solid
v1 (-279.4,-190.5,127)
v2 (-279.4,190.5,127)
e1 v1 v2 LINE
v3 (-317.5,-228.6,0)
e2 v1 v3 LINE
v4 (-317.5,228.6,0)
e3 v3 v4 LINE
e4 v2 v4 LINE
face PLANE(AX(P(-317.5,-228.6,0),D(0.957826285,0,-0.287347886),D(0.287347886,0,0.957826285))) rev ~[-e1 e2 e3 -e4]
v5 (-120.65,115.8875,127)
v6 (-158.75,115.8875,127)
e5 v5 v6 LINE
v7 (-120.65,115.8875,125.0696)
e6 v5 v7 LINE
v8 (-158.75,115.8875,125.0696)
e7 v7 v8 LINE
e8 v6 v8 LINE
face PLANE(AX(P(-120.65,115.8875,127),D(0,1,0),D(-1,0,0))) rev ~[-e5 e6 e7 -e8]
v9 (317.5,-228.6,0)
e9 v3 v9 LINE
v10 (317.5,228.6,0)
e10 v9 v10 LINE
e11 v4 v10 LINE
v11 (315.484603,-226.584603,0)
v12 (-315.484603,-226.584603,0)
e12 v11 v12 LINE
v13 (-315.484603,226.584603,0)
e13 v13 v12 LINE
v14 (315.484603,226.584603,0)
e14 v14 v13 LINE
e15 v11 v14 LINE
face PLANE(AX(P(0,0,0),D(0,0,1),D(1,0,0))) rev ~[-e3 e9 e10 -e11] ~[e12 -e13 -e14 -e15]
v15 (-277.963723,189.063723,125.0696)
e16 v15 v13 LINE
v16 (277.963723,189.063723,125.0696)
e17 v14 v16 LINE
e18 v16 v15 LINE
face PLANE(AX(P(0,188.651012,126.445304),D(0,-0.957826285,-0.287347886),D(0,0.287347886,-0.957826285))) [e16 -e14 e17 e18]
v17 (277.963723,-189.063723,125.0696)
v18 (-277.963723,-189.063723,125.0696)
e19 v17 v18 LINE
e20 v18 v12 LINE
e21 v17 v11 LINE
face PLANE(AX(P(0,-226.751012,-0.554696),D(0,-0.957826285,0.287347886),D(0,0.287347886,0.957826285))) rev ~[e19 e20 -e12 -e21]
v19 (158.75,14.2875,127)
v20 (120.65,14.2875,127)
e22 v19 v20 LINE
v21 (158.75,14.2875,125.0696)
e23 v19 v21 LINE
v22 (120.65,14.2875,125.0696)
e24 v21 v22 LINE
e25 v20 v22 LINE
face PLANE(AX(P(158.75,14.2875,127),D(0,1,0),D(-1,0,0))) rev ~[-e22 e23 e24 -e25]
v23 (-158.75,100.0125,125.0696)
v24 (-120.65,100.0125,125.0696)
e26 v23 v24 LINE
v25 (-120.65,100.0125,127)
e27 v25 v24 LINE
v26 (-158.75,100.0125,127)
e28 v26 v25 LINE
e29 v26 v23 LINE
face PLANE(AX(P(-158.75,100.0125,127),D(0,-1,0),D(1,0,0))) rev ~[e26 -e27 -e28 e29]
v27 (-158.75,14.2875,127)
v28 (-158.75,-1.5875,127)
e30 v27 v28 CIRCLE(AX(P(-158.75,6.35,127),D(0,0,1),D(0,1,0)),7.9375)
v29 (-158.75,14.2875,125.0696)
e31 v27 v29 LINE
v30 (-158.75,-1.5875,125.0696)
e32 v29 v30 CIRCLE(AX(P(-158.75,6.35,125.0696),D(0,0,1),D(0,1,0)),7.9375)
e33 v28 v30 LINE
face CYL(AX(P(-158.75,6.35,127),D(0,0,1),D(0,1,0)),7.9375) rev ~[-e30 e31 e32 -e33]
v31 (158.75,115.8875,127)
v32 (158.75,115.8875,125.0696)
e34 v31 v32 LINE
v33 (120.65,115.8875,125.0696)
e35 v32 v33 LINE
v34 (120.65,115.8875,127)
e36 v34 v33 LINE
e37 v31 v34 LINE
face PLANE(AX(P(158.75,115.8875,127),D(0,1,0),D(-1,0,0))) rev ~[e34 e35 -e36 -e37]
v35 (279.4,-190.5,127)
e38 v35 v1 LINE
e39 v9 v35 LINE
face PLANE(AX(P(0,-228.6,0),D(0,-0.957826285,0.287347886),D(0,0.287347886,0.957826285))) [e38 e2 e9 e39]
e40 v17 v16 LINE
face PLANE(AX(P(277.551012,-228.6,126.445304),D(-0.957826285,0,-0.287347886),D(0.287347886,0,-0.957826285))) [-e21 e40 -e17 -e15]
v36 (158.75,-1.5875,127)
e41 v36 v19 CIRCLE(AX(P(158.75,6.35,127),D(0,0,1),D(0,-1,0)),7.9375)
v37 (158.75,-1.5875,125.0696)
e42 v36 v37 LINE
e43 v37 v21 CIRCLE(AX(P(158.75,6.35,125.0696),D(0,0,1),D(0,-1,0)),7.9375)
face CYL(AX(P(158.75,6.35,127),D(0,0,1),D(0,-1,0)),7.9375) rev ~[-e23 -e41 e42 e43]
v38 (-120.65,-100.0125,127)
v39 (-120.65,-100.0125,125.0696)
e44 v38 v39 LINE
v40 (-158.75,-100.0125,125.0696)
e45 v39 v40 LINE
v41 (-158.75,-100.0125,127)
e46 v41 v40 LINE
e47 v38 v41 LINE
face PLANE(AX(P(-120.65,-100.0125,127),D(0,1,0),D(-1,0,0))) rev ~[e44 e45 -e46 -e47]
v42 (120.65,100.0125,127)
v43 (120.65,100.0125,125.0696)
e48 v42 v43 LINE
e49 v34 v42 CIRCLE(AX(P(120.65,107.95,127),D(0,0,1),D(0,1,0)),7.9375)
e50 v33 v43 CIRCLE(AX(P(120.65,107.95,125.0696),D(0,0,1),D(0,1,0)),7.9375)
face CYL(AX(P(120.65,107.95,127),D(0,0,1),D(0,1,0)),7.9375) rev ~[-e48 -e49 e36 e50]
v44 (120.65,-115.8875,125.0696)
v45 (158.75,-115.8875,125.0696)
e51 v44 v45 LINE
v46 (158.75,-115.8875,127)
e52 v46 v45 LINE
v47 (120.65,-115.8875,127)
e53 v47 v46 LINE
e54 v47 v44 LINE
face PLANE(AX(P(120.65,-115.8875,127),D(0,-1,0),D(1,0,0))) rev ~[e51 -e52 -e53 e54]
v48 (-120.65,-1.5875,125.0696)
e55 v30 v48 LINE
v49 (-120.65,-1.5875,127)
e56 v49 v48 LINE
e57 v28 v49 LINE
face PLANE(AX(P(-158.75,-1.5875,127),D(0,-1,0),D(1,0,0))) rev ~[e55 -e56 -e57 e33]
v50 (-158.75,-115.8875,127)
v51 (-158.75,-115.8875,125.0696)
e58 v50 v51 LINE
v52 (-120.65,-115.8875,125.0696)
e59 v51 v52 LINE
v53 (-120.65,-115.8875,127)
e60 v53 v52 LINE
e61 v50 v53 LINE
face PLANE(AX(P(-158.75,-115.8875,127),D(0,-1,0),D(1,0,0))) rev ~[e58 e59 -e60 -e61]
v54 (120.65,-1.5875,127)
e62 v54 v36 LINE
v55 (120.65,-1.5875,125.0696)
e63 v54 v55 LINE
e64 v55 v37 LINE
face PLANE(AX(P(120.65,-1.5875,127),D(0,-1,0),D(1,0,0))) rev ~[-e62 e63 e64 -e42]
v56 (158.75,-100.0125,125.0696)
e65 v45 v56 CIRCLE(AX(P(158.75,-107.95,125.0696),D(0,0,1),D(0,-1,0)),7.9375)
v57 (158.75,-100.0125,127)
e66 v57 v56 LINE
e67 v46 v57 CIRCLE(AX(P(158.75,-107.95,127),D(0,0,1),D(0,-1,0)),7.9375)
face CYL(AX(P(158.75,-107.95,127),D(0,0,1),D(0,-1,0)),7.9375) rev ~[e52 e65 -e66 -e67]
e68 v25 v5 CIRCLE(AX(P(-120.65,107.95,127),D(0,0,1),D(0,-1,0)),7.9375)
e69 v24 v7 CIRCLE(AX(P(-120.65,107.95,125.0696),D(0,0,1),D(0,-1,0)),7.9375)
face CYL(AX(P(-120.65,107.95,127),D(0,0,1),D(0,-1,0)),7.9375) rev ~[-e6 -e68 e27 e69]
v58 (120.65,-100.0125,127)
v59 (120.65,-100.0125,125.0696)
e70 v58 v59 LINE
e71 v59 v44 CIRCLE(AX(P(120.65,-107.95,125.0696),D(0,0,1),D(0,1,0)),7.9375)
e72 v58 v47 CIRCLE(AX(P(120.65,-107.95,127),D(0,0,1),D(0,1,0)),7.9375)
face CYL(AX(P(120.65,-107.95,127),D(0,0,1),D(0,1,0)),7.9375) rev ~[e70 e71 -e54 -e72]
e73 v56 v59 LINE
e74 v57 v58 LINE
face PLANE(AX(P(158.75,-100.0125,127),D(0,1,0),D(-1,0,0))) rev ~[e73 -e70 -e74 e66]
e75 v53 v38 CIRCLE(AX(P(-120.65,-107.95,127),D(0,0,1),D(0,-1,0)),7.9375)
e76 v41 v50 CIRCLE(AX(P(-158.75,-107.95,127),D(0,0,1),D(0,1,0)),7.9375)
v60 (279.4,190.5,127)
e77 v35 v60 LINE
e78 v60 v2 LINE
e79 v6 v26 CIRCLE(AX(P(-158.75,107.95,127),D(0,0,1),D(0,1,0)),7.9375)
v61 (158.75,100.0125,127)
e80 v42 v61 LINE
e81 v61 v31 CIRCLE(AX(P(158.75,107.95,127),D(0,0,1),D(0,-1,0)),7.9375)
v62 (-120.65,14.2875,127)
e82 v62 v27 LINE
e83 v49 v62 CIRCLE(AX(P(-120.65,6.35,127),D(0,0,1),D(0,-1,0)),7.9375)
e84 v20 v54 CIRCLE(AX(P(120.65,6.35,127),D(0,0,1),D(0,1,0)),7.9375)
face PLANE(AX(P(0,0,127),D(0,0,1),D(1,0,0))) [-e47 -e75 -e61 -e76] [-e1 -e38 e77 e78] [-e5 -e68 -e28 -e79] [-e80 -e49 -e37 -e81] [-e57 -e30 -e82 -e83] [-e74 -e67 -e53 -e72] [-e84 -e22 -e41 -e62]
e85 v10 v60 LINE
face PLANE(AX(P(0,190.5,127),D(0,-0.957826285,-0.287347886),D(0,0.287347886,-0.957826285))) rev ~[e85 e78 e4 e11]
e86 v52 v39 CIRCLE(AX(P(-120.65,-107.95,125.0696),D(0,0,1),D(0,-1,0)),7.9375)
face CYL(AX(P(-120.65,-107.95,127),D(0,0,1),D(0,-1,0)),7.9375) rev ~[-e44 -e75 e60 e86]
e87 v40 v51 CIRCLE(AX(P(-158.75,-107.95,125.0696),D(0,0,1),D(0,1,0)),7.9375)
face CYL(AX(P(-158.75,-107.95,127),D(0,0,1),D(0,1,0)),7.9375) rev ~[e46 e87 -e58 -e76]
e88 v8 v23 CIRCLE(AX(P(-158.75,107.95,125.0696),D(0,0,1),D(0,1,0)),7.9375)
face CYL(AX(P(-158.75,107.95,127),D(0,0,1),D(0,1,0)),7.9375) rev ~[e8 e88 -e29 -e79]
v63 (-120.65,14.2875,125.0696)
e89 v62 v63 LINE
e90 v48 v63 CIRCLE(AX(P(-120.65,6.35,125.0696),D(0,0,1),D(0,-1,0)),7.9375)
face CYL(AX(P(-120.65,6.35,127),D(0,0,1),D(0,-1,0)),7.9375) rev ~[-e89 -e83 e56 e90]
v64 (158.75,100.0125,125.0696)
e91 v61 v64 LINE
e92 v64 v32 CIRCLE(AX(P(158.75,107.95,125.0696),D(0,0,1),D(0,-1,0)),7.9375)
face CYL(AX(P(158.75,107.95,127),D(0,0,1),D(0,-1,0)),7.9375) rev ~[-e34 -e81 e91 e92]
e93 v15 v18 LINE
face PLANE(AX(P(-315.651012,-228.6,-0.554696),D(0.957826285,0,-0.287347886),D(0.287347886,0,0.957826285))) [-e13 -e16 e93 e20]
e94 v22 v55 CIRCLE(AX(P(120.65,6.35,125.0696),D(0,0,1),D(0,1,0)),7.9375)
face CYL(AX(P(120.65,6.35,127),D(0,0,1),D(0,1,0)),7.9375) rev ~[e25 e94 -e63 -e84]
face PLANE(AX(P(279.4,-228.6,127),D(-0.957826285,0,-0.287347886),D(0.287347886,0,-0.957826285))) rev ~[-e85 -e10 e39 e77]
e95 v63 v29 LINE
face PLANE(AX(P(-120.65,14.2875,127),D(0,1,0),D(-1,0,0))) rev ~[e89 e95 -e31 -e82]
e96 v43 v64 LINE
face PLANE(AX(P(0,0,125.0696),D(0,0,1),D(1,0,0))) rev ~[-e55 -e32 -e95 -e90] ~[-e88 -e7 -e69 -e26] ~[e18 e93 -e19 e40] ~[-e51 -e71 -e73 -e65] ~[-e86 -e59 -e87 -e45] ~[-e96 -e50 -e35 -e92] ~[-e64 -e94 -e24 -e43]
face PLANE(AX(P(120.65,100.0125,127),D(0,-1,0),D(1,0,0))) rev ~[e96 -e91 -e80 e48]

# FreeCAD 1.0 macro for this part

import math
import FreeCAD as App
import Part
import Sketcher

V = App.Vector
Q = App.Units.Quantity


def faces_at(feature, points):
    """Names of the faces that lie closest to the given points."""
    faces = feature.Shape.Faces
    near = lambda p: min(range(len(faces)), key=lambda i: faces[i].distToShape(Part.Vertex(*p))[0])
    return sorted({f"Face{near(p) + 1}" for p in points})

doc = App.newDocument("Part")
body = doc.addObject("PartDesign::Body", "Body")

sketch1 = body.newObject("Sketcher::SketchObject", "Sketch")
sketch1.AttachmentSupport = (doc.getObject("XY_Plane"), [""])
sketch1.MapMode = "FlatFace"
sketch1.addGeometry([
    Part.LineSegment(V(-317.5, 228.6, 0), V(-317.5, -228.6, 0)),
    Part.LineSegment(V(-317.5, -228.6, 0), V(317.5, -228.6, 0)),
    Part.LineSegment(V(317.5, -228.6, 0), V(317.5, 228.6, 0)),
    Part.LineSegment(V(317.5, 228.6, 0), V(-317.5, 228.6, 0)),
], False)
sketch1.addConstraint([
    Sketcher.Constraint("Coincident", 0, 2, 1, 1),
    Sketcher.Constraint("Coincident", 1, 2, 2, 1),
    Sketcher.Constraint("Coincident", 2, 2, 3, 1),
    Sketcher.Constraint("Coincident", 3, 2, 0, 1),
    Sketcher.Constraint("Vertical", 0),
    Sketcher.Constraint("Horizontal", 1),
    Sketcher.Constraint("Vertical", 2),
    Sketcher.Constraint("Horizontal", 3),
    Sketcher.Constraint("Symmetric", 0, 2, 2, 2, -1, 1),
    Sketcher.Constraint("DistanceX", 1, 1, 1, 2, Q("25 in")),
    Sketcher.Constraint("DistanceY", 0, 2, 0, 1, Q("18 in")),
])
pad1 = body.newObject("PartDesign::Pad", "Pad")
pad1.Profile = sketch1
pad1.Length = Q("5 in")

sketch2 = body.newObject("Sketcher::SketchObject", "Sketch001")
sketch2.AttachmentSupport = (doc.getObject("XZ_Plane"), [""])
sketch2.MapMode = "FlatFace"
sketch2.AttachmentOffset = App.Placement(V(0, 0, 9 * 25.4), App.Rotation())
sketch2.addGeometry([
    Part.LineSegment(V(-317.5, 127, 0), V(-317.5, 0, 0)),
    Part.LineSegment(V(-317.5, 0, 0), V(-279.4, 127, 0)),
    Part.LineSegment(V(-279.4, 127, 0), V(-317.5, 127, 0)),
    Part.LineSegment(V(279.4, 127, 0), V(317.5, 0, 0)),
    Part.LineSegment(V(317.5, 0, 0), V(317.5, 127, 0)),
    Part.LineSegment(V(317.5, 127, 0), V(279.4, 127, 0)),
], False)
sketch2.addConstraint([
    Sketcher.Constraint("Coincident", 0, 2, 1, 1),
    Sketcher.Constraint("Coincident", 1, 2, 2, 1),
    Sketcher.Constraint("Coincident", 2, 2, 0, 1),
    Sketcher.Constraint("Coincident", 3, 2, 4, 1),
    Sketcher.Constraint("Coincident", 4, 2, 5, 1),
    Sketcher.Constraint("Coincident", 5, 2, 3, 1),
    Sketcher.Constraint("Vertical", 0),
    Sketcher.Constraint("Horizontal", 2),
    Sketcher.Constraint("Vertical", 4),
    Sketcher.Constraint("Horizontal", 5),
    Sketcher.Constraint("Symmetric", 0, 2, 3, 2, -1, 1),
    Sketcher.Constraint("Symmetric", 1, 2, 5, 2, -2),
    Sketcher.Constraint("PointOnObject", 0, 2, -1),
    Sketcher.Constraint("DistanceY", 0, 2, 0, 1, Q("5 in")),
    Sketcher.Constraint("DistanceX", 2, 2, 2, 1, Q("1.5 in")),
    Sketcher.Constraint("DistanceX", 1, 2, -1, 1, Q("11 in")),
])
pocket1 = body.newObject("PartDesign::Pocket", "Pocket")
pocket1.Profile = sketch2
pocket1.Type = "ThroughAll"

sketch3 = body.newObject("Sketcher::SketchObject", "Sketch002")
sketch3.AttachmentSupport = (doc.getObject("YZ_Plane"), [""])
sketch3.MapMode = "FlatFace"
sketch3.addGeometry([
    Part.LineSegment(V(-228.6, 127, 0), V(-228.6, 0, 0)),
    Part.LineSegment(V(-228.6, 0, 0), V(-190.5, 127, 0)),
    Part.LineSegment(V(-190.5, 127, 0), V(-228.6, 127, 0)),
    Part.LineSegment(V(228.6, 0, 0), V(228.6, 127, 0)),
    Part.LineSegment(V(228.6, 127, 0), V(190.5, 127, 0)),
    Part.LineSegment(V(190.5, 127, 0), V(228.6, 0, 0)),
], False)
sketch3.addConstraint([
    Sketcher.Constraint("Coincident", 0, 2, 1, 1),
    Sketcher.Constraint("Coincident", 1, 2, 2, 1),
    Sketcher.Constraint("Coincident", 2, 2, 0, 1),
    Sketcher.Constraint("Coincident", 3, 2, 4, 1),
    Sketcher.Constraint("Coincident", 4, 2, 5, 1),
    Sketcher.Constraint("Coincident", 5, 2, 3, 1),
    Sketcher.Constraint("Vertical", 0),
    Sketcher.Constraint("Horizontal", 2),
    Sketcher.Constraint("Vertical", 3),
    Sketcher.Constraint("Horizontal", 4),
    Sketcher.Constraint("Symmetric", 0, 2, 5, 2, -1, 1),
    Sketcher.Constraint("Symmetric", 1, 2, 4, 2, -2),
    Sketcher.Constraint("PointOnObject", 0, 2, -1),
    Sketcher.Constraint("DistanceY", 0, 2, 0, 1, Q("5 in")),
    Sketcher.Constraint("DistanceX", 2, 2, 2, 1, Q("1.5 in")),
    Sketcher.Constraint("DistanceX", 0, 2, -1, 1, Q("9 in")),
])
pocket2 = body.newObject("PartDesign::Pocket", "Pocket001")
pocket2.Profile = sketch3
pocket2.Length = Q("26 in")
pocket2.Midplane = True
doc.recompute()

thickness = body.newObject("PartDesign::Thickness", "Thickness")
thickness.Base = (pocket2, faces_at(pocket2, [(0, 0, 0)]))
thickness.Value = Q("0.076 in")
thickness.Reversed = True
thickness.Join = "Arc"

sketch4 = body.newObject("Sketcher::SketchObject", "Sketch003")
sketch4.AttachmentSupport = (doc.getObject("XY_Plane"), [""])
sketch4.MapMode = "FlatFace"
sketch4.AttachmentOffset = App.Placement(V(0, 0, 5 * 25.4), App.Rotation())
sketch4.addGeometry([
    Part.ArcOfCircle(Part.Circle(V(-158.75, 107.95, 0), V(0, 0, 1), 7.9375), math.radians(90), math.radians(270)),
    Part.LineSegment(V(-158.75, 100.0125, 0), V(-120.65, 100.0125, 0)),
    Part.ArcOfCircle(Part.Circle(V(-120.65, 107.95, 0), V(0, 0, 1), 7.9375), math.radians(-90), math.radians(90)),
    Part.LineSegment(V(-120.65, 115.8875, 0), V(-158.75, 115.8875, 0)),
    Part.ArcOfCircle(Part.Circle(V(158.75, 107.95, 0), V(0, 0, 1), 7.9375), math.radians(-90), math.radians(90)),
    Part.LineSegment(V(158.75, 115.8875, 0), V(120.65, 115.8875, 0)),
    Part.ArcOfCircle(Part.Circle(V(120.65, 107.95, 0), V(0, 0, 1), 7.9375), math.radians(90), math.radians(270)),
    Part.LineSegment(V(120.65, 100.0125, 0), V(158.75, 100.0125, 0)),
    Part.LineSegment(V(120.65, -1.5875, 0), V(158.75, -1.5875, 0)),
    Part.ArcOfCircle(Part.Circle(V(158.75, 6.35, 0), V(0, 0, 1), 7.9375), math.radians(-90), math.radians(90)),
    Part.LineSegment(V(158.75, 14.2875, 0), V(120.65, 14.2875, 0)),
    Part.ArcOfCircle(Part.Circle(V(120.65, 6.35, 0), V(0, 0, 1), 7.9375), math.radians(90), math.radians(270)),
    Part.LineSegment(V(-158.75, -1.5875, 0), V(-120.65, -1.5875, 0)),
    Part.ArcOfCircle(Part.Circle(V(-120.65, 6.35, 0), V(0, 0, 1), 7.9375), math.radians(-90), math.radians(90)),
    Part.LineSegment(V(-120.65, 14.2875, 0), V(-158.75, 14.2875, 0)),
    Part.ArcOfCircle(Part.Circle(V(-158.75, 6.35, 0), V(0, 0, 1), 7.9375), math.radians(90), math.radians(270)),
    Part.ArcOfCircle(Part.Circle(V(-158.75, -107.95, 0), V(0, 0, 1), 7.9375), math.radians(90), math.radians(270)),
    Part.LineSegment(V(-158.75, -115.8875, 0), V(-120.65, -115.8875, 0)),
    Part.ArcOfCircle(Part.Circle(V(-120.65, -107.95, 0), V(0, 0, 1), 7.9375), math.radians(-90), math.radians(90)),
    Part.LineSegment(V(-120.65, -100.0125, 0), V(-158.75, -100.0125, 0)),
    Part.ArcOfCircle(Part.Circle(V(120.65, -107.95, 0), V(0, 0, 1), 7.9375), math.radians(90), math.radians(270)),
    Part.LineSegment(V(120.65, -115.8875, 0), V(158.75, -115.8875, 0)),
    Part.ArcOfCircle(Part.Circle(V(158.75, -107.95, 0), V(0, 0, 1), 7.9375), math.radians(-90), math.radians(90)),
    Part.LineSegment(V(158.75, -100.0125, 0), V(120.65, -100.0125, 0)),
], False)
sketch4.addConstraint([
    Sketcher.Constraint("Tangent", 0, 2, 1, 1),
    Sketcher.Constraint("Tangent", 1, 2, 2, 1),
    Sketcher.Constraint("Tangent", 2, 2, 3, 1),
    Sketcher.Constraint("Tangent", 3, 2, 0, 1),
    Sketcher.Constraint("Tangent", 4, 2, 5, 1),
    Sketcher.Constraint("Tangent", 5, 2, 6, 1),
    Sketcher.Constraint("Tangent", 6, 2, 7, 1),
    Sketcher.Constraint("Tangent", 7, 2, 4, 1),
    Sketcher.Constraint("Tangent", 8, 2, 9, 1),
    Sketcher.Constraint("Tangent", 9, 2, 10, 1),
    Sketcher.Constraint("Tangent", 10, 2, 11, 1),
    Sketcher.Constraint("Tangent", 11, 2, 8, 1),
    Sketcher.Constraint("Tangent", 12, 2, 13, 1),
    Sketcher.Constraint("Tangent", 13, 2, 14, 1),
    Sketcher.Constraint("Tangent", 14, 2, 15, 1),
    Sketcher.Constraint("Tangent", 15, 2, 12, 1),
    Sketcher.Constraint("Tangent", 16, 2, 17, 1),
    Sketcher.Constraint("Tangent", 17, 2, 18, 1),
    Sketcher.Constraint("Tangent", 18, 2, 19, 1),
    Sketcher.Constraint("Tangent", 19, 2, 16, 1),
    Sketcher.Constraint("Tangent", 20, 2, 21, 1),
    Sketcher.Constraint("Tangent", 21, 2, 22, 1),
    Sketcher.Constraint("Tangent", 22, 2, 23, 1),
    Sketcher.Constraint("Tangent", 23, 2, 20, 1),
    Sketcher.Constraint("Horizontal", 1),
    Sketcher.Constraint("Horizontal", 3),
    Sketcher.Constraint("Horizontal", 5),
    Sketcher.Constraint("Horizontal", 7),
    Sketcher.Constraint("Horizontal", 8),
    Sketcher.Constraint("Horizontal", 10),
    Sketcher.Constraint("Horizontal", 12),
    Sketcher.Constraint("Horizontal", 14),
    Sketcher.Constraint("Horizontal", 17),
    Sketcher.Constraint("Horizontal", 19),
    Sketcher.Constraint("Horizontal", 21),
    Sketcher.Constraint("Horizontal", 23),
    Sketcher.Constraint("Equal", 2, 4),
    Sketcher.Constraint("Equal", 6, 9),
    Sketcher.Constraint("Equal", 11, 13),
    Sketcher.Constraint("Equal", 15, 16),
    Sketcher.Constraint("Equal", 18, 20),
    Sketcher.Constraint("Symmetric", 4, 3, 16, 3, -1, 1),
    Sketcher.Constraint("Symmetric", 2, 3, 20, 3, -1, 1),
    Sketcher.Constraint("Symmetric", 0, 3, 4, 3, -2),
    Sketcher.Constraint("Symmetric", 11, 3, 13, 3, -2),
    Sketcher.Constraint("Vertical", 4, 3, 9, 3),
    Sketcher.Constraint("Vertical", 6, 3, 11, 3),
    Sketcher.Constraint("Vertical", 2, 3, 13, 3),
    Sketcher.Constraint("Vertical", 0, 3, 15, 3),
    Sketcher.Constraint("Vertical", 13, 3, 18, 3),
    Sketcher.Constraint("Vertical", 9, 3, 22, 3),
    Sketcher.Constraint("DistanceX", 1, 1, 1, 2, Q("1.5 in")),
    Sketcher.Constraint("Radius", 0, Q("0.3125 in")),
    Sketcher.Constraint("DistanceX", 2, 3, 4, 3, Q("11 in")),
    Sketcher.Constraint("DistanceY", 9, 3, 4, 3, Q("4 in")),
    Sketcher.Constraint("DistanceY", 16, 3, 15, 3, Q("4.5 in")),
])
pocket3 = body.newObject("PartDesign::Pocket", "Pocket002")
pocket3.Profile = sketch4
pocket3.Type = "ThroughAll"

doc.recompute()
